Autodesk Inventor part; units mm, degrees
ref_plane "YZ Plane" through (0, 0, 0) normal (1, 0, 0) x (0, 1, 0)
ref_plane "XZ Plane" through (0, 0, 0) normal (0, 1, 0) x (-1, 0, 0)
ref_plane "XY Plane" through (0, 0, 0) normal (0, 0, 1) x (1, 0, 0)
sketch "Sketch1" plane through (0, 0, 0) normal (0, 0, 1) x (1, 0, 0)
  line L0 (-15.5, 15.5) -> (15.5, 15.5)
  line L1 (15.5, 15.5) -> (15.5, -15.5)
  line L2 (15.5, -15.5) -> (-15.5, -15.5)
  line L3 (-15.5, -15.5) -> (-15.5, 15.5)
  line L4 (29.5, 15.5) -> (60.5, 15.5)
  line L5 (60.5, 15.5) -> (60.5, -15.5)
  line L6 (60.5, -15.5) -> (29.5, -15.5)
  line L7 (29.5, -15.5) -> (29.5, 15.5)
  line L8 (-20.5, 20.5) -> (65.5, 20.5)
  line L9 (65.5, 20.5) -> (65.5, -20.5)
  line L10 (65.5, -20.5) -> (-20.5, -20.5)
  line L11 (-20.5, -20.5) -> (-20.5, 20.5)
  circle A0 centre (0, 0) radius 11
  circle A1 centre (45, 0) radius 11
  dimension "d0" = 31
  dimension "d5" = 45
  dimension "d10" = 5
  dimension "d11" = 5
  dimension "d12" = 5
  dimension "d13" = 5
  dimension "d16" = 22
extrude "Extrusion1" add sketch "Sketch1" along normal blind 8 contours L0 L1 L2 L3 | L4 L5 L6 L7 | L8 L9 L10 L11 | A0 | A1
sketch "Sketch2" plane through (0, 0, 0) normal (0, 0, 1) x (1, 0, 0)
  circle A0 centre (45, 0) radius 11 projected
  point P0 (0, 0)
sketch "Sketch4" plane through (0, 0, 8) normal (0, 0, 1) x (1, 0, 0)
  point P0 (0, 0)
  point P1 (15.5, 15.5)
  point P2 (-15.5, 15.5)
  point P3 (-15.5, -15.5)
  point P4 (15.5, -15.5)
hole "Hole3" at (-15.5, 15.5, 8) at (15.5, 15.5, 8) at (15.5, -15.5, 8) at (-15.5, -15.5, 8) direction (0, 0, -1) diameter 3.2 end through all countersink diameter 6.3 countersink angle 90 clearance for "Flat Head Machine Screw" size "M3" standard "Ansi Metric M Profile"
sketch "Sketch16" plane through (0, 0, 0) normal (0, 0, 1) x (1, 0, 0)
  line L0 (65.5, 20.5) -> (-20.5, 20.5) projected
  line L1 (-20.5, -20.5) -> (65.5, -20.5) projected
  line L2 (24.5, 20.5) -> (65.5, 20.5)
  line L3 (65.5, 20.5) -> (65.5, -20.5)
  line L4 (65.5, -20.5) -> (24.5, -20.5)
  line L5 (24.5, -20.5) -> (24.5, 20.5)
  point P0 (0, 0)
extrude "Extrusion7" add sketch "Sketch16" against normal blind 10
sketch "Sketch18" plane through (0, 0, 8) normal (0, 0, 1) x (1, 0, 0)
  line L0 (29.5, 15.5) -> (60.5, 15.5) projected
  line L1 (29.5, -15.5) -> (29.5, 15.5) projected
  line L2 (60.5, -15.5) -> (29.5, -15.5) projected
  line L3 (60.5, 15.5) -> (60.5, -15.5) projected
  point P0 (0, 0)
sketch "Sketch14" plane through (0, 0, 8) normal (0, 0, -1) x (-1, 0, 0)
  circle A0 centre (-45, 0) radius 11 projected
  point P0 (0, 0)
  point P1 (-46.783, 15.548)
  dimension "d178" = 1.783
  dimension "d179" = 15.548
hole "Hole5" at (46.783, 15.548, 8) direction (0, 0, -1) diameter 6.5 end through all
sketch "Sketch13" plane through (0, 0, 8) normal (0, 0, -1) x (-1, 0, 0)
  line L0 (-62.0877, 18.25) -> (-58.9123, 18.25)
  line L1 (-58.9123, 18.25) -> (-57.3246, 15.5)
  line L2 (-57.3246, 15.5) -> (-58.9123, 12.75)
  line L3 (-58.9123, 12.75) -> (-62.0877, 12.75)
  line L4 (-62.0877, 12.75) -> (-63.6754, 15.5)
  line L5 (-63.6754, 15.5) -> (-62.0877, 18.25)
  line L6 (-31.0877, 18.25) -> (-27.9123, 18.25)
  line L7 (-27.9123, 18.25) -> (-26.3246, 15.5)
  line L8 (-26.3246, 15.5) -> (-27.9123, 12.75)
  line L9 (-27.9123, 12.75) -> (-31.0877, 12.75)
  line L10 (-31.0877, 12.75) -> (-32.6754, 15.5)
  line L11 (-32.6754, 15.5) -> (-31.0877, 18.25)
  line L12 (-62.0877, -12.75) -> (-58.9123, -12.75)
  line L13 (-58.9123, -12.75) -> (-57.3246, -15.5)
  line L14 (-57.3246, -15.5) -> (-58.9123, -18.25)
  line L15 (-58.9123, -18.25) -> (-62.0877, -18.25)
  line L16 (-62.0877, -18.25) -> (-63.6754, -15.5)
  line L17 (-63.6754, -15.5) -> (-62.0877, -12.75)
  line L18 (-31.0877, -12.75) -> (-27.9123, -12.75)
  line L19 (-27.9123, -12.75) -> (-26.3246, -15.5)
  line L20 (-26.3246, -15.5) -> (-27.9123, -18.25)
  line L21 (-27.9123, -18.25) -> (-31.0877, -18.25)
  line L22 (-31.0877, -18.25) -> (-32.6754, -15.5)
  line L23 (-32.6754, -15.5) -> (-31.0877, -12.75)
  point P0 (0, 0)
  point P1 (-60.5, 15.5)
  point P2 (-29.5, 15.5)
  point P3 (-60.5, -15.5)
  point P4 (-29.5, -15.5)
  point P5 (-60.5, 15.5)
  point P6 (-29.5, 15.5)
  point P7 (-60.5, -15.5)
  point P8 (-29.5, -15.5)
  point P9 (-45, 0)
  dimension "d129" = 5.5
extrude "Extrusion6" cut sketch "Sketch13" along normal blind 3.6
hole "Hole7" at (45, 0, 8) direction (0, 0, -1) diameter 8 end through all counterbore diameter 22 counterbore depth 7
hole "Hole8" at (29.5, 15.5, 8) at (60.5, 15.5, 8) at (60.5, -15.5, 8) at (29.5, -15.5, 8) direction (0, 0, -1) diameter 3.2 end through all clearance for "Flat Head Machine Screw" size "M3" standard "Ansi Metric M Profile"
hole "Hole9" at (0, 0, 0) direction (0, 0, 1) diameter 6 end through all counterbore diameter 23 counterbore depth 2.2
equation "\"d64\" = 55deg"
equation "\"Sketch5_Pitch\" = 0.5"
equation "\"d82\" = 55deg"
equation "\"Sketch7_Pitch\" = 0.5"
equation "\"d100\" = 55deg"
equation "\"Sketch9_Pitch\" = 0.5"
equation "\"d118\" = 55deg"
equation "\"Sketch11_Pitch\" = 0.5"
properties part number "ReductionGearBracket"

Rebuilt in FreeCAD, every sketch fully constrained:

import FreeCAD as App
import Part
import Sketcher
Q = App.Units.Quantity

doc = App.newDocument("Part")
params = doc.addObject("Spreadsheet::Sheet", "Params")
for row, (alias, value) in enumerate([
    ("sketch1_width", "86 mm"),
    ("sketch1_height", "41 mm"),
    ("pad1_length", "8 mm"),
    ("sketch2_diameter", "3.2 mm"),
    ("hole_diameter", "3.2 mm"),
    ("hole_csink_diameter", "6.3 mm"),
    ("sketch3_width", "41 mm"),
    ("pad2_length", "10 mm"),
    ("sketch4_diameter", "6.5 mm"),
    ("hole2_diameter", "6.5 mm"),
    ("pocket1_length", "3.6 mm"),
    ("sketch6_diameter", "8 mm"),
    ("hole3_diameter", "8 mm"),
    ("hole3_cbore_diameter", "22 mm"),
    ("hole3_cbore_depth", "7 mm"),
    ("sketch7_diameter", "3.2 mm"),
    ("hole4_diameter", "3.2 mm"),
    ("sketch8_diameter", "6 mm"),
    ("hole5_diameter", "6 mm"),
    ("hole5_cbore_diameter", "23 mm"),
    ("hole5_cbore_depth", "2.2 mm"),
], start=1):
    params.set(f"A{row}", alias)
    params.set(f"B{row}", "=" + value)
    params.setAlias(f"B{row}", alias)

body = doc.addObject("PartDesign::Body", "Body")

# Sketch on XY plane
sketch1 = body.newObject("Sketcher::SketchObject", "Sketch")
sketch1.AttachmentSupport = (doc.getObject("XY_Plane"), [""])
sketch1.MapMode = "FlatFace"
sketch1.addGeometry([
    Part.LineSegment(App.Vector(66, 20, 0), App.Vector(-20, 20, 0)),
    Part.LineSegment(App.Vector(-20, 20, 0), App.Vector(-20, -20, 0)),
    Part.LineSegment(App.Vector(-20, -20, 0), App.Vector(66, -20, 0)),
    Part.LineSegment(App.Vector(66, -20, 0), App.Vector(66, 20, 0)),
], False)
sketch1.addConstraint([
    Sketcher.Constraint("Coincident", 0, 2, 1, 1),
    Sketcher.Constraint("Coincident", 1, 2, 2, 1),
    Sketcher.Constraint("Coincident", 2, 2, 3, 1),
    Sketcher.Constraint("Coincident", 3, 2, 0, 1),
    Sketcher.Constraint("Horizontal", 0),
    Sketcher.Constraint("Vertical", 1),
    Sketcher.Constraint("Horizontal", 2),
    Sketcher.Constraint("Vertical", 3),
    Sketcher.Constraint("DistanceX", 0, 2, 0, 1, 86.0),
    Sketcher.Constraint("DistanceY", 1, 2, 1, 1, 41.0),
    Sketcher.Constraint("DistanceX", 0, 2, -1, 1, 20.5),
    Sketcher.Constraint("DistanceY", -1, 1, 0, 2, 20.5),
])
sketch1.setExpression("Constraints[8]", "Params.sketch1_width")
sketch1.setExpression("Constraints[9]", "Params.sketch1_height")
pad1 = body.newObject("PartDesign::Pad", "Pad")
pad1.Profile = sketch1
pad1.setExpression("Length", "Params.pad1_length")

# Sketch on XY plane
sketch2 = body.newObject("Sketcher::SketchObject", "Sketch001")
sketch2.AttachmentSupport = (doc.getObject("XY_Plane"), [""])
sketch2.MapMode = "FlatFace"
sketch2.AttachmentOffset = App.Placement(App.Vector(0, 0, 8), App.Rotation())
sketch2.addGeometry([
    Part.Circle(App.Vector(-15.5, 15.5, 0), App.Vector(0, 0, 1), 1.6),
    Part.Circle(App.Vector(15.5, 15.5, 0), App.Vector(0, 0, 1), 1.6),
    Part.Circle(App.Vector(15.5, -15.5, 0), App.Vector(0, 0, 1), 1.6),
    Part.Circle(App.Vector(-15.5, -15.5, 0), App.Vector(0, 0, 1), 1.6),
], False)
sketch2.addConstraint([
    Sketcher.Constraint("Equal", 0, 1),
    Sketcher.Constraint("Equal", 1, 2),
    Sketcher.Constraint("Equal", 2, 3),
    Sketcher.Constraint("Symmetric", 0, 3, 2, 3, -1, 1),
    Sketcher.Constraint("Symmetric", 1, 3, 3, 3, -1, 1),
    Sketcher.Constraint("Symmetric", 0, 3, 1, 3, -2),
    Sketcher.Constraint("Diameter", 0, 3.2),
    Sketcher.Constraint("DistanceX", 0, 3, 1, 3, 31.0),
    Sketcher.Constraint("DistanceY", 2, 3, 1, 3, 31.0),
])
sketch2.setExpression("Constraints[6]", "Params.sketch2_diameter")
doc.recompute()
hole = body.newObject("PartDesign::Hole", "Hole")
hole.Profile = sketch2
hole.ThreadType = "None"
hole.setExpression("Diameter", "Params.hole_diameter")
hole.DepthType = "ThroughAll"
hole.HoleCutType = "Countersink"
hole.setExpression("HoleCutDiameter", "Params.hole_csink_diameter")
hole.HoleCutCountersinkAngle = 90

# Sketch on XY plane
sketch3 = body.newObject("Sketcher::SketchObject", "Sketch002")
sketch3.AttachmentSupport = (doc.getObject("XY_Plane"), [""])
sketch3.MapMode = "FlatFace"
sketch3.addGeometry([
    Part.LineSegment(App.Vector(66, -20, 0), App.Vector(66, 20, 0)),
    Part.LineSegment(App.Vector(66, 20, 0), App.Vector(24, 20, 0)),
    Part.LineSegment(App.Vector(24, 20, 0), App.Vector(24, -20, 0)),
    Part.LineSegment(App.Vector(24, -20, 0), App.Vector(66, -20, 0)),
], False)
sketch3.addConstraint([
    Sketcher.Constraint("Coincident", 0, 2, 1, 1),
    Sketcher.Constraint("Coincident", 1, 2, 2, 1),
    Sketcher.Constraint("Coincident", 2, 2, 3, 1),
    Sketcher.Constraint("Coincident", 3, 2, 0, 1),
    Sketcher.Constraint("Vertical", 0),
    Sketcher.Constraint("Horizontal", 1),
    Sketcher.Constraint("Vertical", 2),
    Sketcher.Constraint("Horizontal", 3),
    Sketcher.Constraint("Equal", 3, 0),
    Sketcher.Constraint("DistanceX", 1, 2, 1, 1, 41.0),
    Sketcher.Constraint("DistanceX", -1, 1, 0, 2, 65.5),
    Sketcher.Constraint("DistanceY", -1, 1, 0, 2, 20.5),
])
sketch3.setExpression("Constraints[9]", "Params.sketch3_width")
pad2 = body.newObject("PartDesign::Pad", "Pad001")
pad2.Profile = sketch3
pad2.setExpression("Length", "Params.pad2_length")
pad2.Reversed = True

# Sketch on XY plane
sketch4 = body.newObject("Sketcher::SketchObject", "Sketch003")
sketch4.AttachmentSupport = (doc.getObject("XY_Plane"), [""])
sketch4.MapMode = "FlatFace"
sketch4.AttachmentOffset = App.Placement(App.Vector(0, 0, 8), App.Rotation())
sketch4.addGeometry(Part.Circle(App.Vector(46.8, 15.5, 0), App.Vector(0, 0, 1), 3.2), False)
sketch4.addConstraint([
    Sketcher.Constraint("Diameter", 0, 6.5),
    Sketcher.Constraint("DistanceX", -1, 1, 0, 3, 46.783),
    Sketcher.Constraint("DistanceY", -1, 1, 0, 3, 15.548),
])
sketch4.setExpression("Constraints[0]", "Params.sketch4_diameter")
doc.recompute()
hole2 = body.newObject("PartDesign::Hole", "Hole001")
hole2.Profile = sketch4
hole2.ThreadType = "None"
hole2.setExpression("Diameter", "Params.hole2_diameter")
hole2.DepthType = "ThroughAll"

# Sketch on XY plane
sketch5 = body.newObject("Sketcher::SketchObject", "Sketch004")
sketch5.AttachmentSupport = (doc.getObject("XY_Plane"), [""])
sketch5.MapMode = "FlatFace"
sketch5.AttachmentOffset = App.Placement(App.Vector(0, 0, 8), App.Rotation())
sketch5.addGeometry([
    Part.LineSegment(App.Vector(58.9, 18.2, 0), App.Vector(62.1, 18.2, 0)),  # 0
    Part.LineSegment(App.Vector(62.1, 18.2, 0), App.Vector(63.7, 15.5, 0)),  # 1
    Part.LineSegment(App.Vector(63.7, 15.5, 0), App.Vector(62.1, 12.8, 0)),  # 2
    Part.LineSegment(App.Vector(62.1, 12.8, 0), App.Vector(58.9, 12.8, 0)),  # 3
    Part.LineSegment(App.Vector(58.9, 12.8, 0), App.Vector(57.3, 15.5, 0)),  # 4
    Part.LineSegment(App.Vector(57.3, 15.5, 0), App.Vector(58.9, 18.2, 0)),  # 5
    Part.LineSegment(App.Vector(27.9, 18.2, 0), App.Vector(31.1, 18.2, 0)),  # 6
    Part.LineSegment(App.Vector(31.1, 18.2, 0), App.Vector(32.7, 15.5, 0)),  # 7
    Part.LineSegment(App.Vector(32.7, 15.5, 0), App.Vector(31.1, 12.8, 0)),  # 8
    Part.LineSegment(App.Vector(31.1, 12.8, 0), App.Vector(27.9, 12.8, 0)),  # 9
    Part.LineSegment(App.Vector(27.9, 12.8, 0), App.Vector(26.3, 15.5, 0)),  # 10
    Part.LineSegment(App.Vector(26.3, 15.5, 0), App.Vector(27.9, 18.2, 0)),  # 11
    Part.LineSegment(App.Vector(58.9, -12.8, 0), App.Vector(62.1, -12.8, 0)),  # 12
    Part.LineSegment(App.Vector(62.1, -12.8, 0), App.Vector(63.7, -15.5, 0)),  # 13
    Part.LineSegment(App.Vector(63.7, -15.5, 0), App.Vector(62.1, -18.2, 0)),  # 14
    Part.LineSegment(App.Vector(62.1, -18.2, 0), App.Vector(58.9, -18.2, 0)),  # 15
    Part.LineSegment(App.Vector(58.9, -18.2, 0), App.Vector(57.3, -15.5, 0)),  # 16
    Part.LineSegment(App.Vector(57.3, -15.5, 0), App.Vector(58.9, -12.8, 0)),  # 17
    Part.LineSegment(App.Vector(27.9, -12.8, 0), App.Vector(31.1, -12.8, 0)),  # 18
    Part.LineSegment(App.Vector(31.1, -12.8, 0), App.Vector(32.7, -15.5, 0)),  # 19
    Part.LineSegment(App.Vector(32.7, -15.5, 0), App.Vector(31.1, -18.2, 0)),  # 20
    Part.LineSegment(App.Vector(31.1, -18.2, 0), App.Vector(27.9, -18.2, 0)),  # 21
    Part.LineSegment(App.Vector(27.9, -18.2, 0), App.Vector(26.3, -15.5, 0)),  # 22
    Part.LineSegment(App.Vector(26.3, -15.5, 0), App.Vector(27.9, -12.8, 0)),  # 23
], False)
sketch5.addConstraint([
    Sketcher.Constraint("Coincident", 0, 2, 1, 1),
    Sketcher.Constraint("Coincident", 1, 2, 2, 1),
    Sketcher.Constraint("Coincident", 2, 2, 3, 1),
    Sketcher.Constraint("Coincident", 3, 2, 4, 1),
    Sketcher.Constraint("Coincident", 4, 2, 5, 1),
    Sketcher.Constraint("Coincident", 5, 2, 0, 1),
    Sketcher.Constraint("Coincident", 6, 2, 7, 1),
    Sketcher.Constraint("Coincident", 7, 2, 8, 1),
    Sketcher.Constraint("Coincident", 8, 2, 9, 1),
    Sketcher.Constraint("Coincident", 9, 2, 10, 1),
    Sketcher.Constraint("Coincident", 10, 2, 11, 1),
    Sketcher.Constraint("Coincident", 11, 2, 6, 1),
    Sketcher.Constraint("Coincident", 12, 2, 13, 1),
    Sketcher.Constraint("Coincident", 13, 2, 14, 1),
    Sketcher.Constraint("Coincident", 14, 2, 15, 1),
    Sketcher.Constraint("Coincident", 15, 2, 16, 1),
    Sketcher.Constraint("Coincident", 16, 2, 17, 1),
    Sketcher.Constraint("Coincident", 17, 2, 12, 1),
    Sketcher.Constraint("Coincident", 18, 2, 19, 1),
    Sketcher.Constraint("Coincident", 19, 2, 20, 1),
    Sketcher.Constraint("Coincident", 20, 2, 21, 1),
    Sketcher.Constraint("Coincident", 21, 2, 22, 1),
    Sketcher.Constraint("Coincident", 22, 2, 23, 1),
    Sketcher.Constraint("Coincident", 23, 2, 18, 1),
    Sketcher.Constraint("Horizontal", 0),
    Sketcher.Constraint("Horizontal", 3),
    Sketcher.Constraint("Horizontal", 6),
    Sketcher.Constraint("Horizontal", 9),
    Sketcher.Constraint("Horizontal", 12),
    Sketcher.Constraint("Horizontal", 15),
    Sketcher.Constraint("Horizontal", 18),
    Sketcher.Constraint("Horizontal", 21),
    Sketcher.Constraint("Symmetric", 2, 2, 12, 2, -1),
    Sketcher.Constraint("Symmetric", 1, 2, 13, 2, -1),
    Sketcher.Constraint("Symmetric", 0, 2, 14, 2, -1),
    Sketcher.Constraint("Symmetric", 4, 2, 16, 2, -1),
    Sketcher.Constraint("Symmetric", 8, 2, 18, 2, -1),
    Sketcher.Constraint("Symmetric", 7, 2, 19, 2, -1),
    Sketcher.Constraint("Symmetric", 6, 2, 20, 2, -1),
    Sketcher.Constraint("Symmetric", 10, 2, 22, 2, -1),
    Sketcher.Constraint("Parallel", 1, 4),
    Sketcher.Constraint("Parallel", 2, 5),
    Sketcher.Constraint("Parallel", 4, 7),
    Sketcher.Constraint("Parallel", 5, 8),
    Sketcher.Constraint("Parallel", 7, 10),
    Sketcher.Constraint("Parallel", 8, 11),
    Sketcher.Constraint("Parallel", 10, 13),
    Sketcher.Constraint("Parallel", 13, 16),
    Sketcher.Constraint("Parallel", 14, 17),
    Sketcher.Constraint("Parallel", 19, 22),
    Sketcher.Constraint("Parallel", 20, 23),
    Sketcher.Constraint("Horizontal", 1, 2, 4, 2),
    Sketcher.Constraint("Horizontal", 5, 2, 6, 2),
    Sketcher.Constraint("Horizontal", 4, 2, 7, 2),
    Sketcher.Constraint("Horizontal", 3, 2, 8, 2),
    Sketcher.Constraint("Horizontal", 7, 2, 10, 2),
    Sketcher.Constraint("Vertical", 0, 2, 2, 2),
    Sketcher.Constraint("Equal", 3, 6),
    Sketcher.Constraint("DistanceY", 2, 2, 0, 2, 5.5),
    Sketcher.Constraint("Angle", 1, Q("-60.0002 deg")),
    Sketcher.Constraint("DistanceX", 6, 2, 0, 2, 31.0),
    Sketcher.Constraint("DistanceY", 12, 2, 0, 2, 31.0),
    Sketcher.Constraint("DistanceX", 0, 1, 0, 2, 3.1754),
    Sketcher.Constraint("DistanceX", -1, 1, 0, 2, 62.0877),
])
pocket1 = body.newObject("PartDesign::Pocket", "Pocket")
pocket1.Profile = sketch5
pocket1.setExpression("Length", "Params.pocket1_length")

# Sketch on XY plane
sketch6 = body.newObject("Sketcher::SketchObject", "Sketch005")
sketch6.AttachmentSupport = (doc.getObject("XY_Plane"), [""])
sketch6.MapMode = "FlatFace"
sketch6.AttachmentOffset = App.Placement(App.Vector(0, 0, 8), App.Rotation())
sketch6.addGeometry(Part.Circle(App.Vector(45, 0, 0), App.Vector(0, 0, 1), 4), False)
sketch6.addConstraint([
    Sketcher.Constraint("PointOnObject", 0, 3, -1),
    Sketcher.Constraint("Diameter", 0, 8.0),
    Sketcher.Constraint("DistanceX", -1, 1, 0, 3, 45.0),
])
sketch6.setExpression("Constraints[1]", "Params.sketch6_diameter")
doc.recompute()
hole3 = body.newObject("PartDesign::Hole", "Hole002")
hole3.Profile = sketch6
hole3.ThreadType = "None"
hole3.setExpression("Diameter", "Params.hole3_diameter")
hole3.DepthType = "ThroughAll"
hole3.HoleCutType = "Counterbore"
hole3.setExpression("HoleCutDiameter", "Params.hole3_cbore_diameter")
hole3.setExpression("HoleCutDepth", "Params.hole3_cbore_depth")

# Sketch on XY plane
sketch7 = body.newObject("Sketcher::SketchObject", "Sketch006")
sketch7.AttachmentSupport = (doc.getObject("XY_Plane"), [""])
sketch7.MapMode = "FlatFace"
sketch7.AttachmentOffset = App.Placement(App.Vector(0, 0, 8), App.Rotation())
sketch7.addGeometry([
    Part.Circle(App.Vector(29.5, 15.5, 0), App.Vector(0, 0, 1), 1.6),
    Part.Circle(App.Vector(60.5, 15.5, 0), App.Vector(0, 0, 1), 1.6),
    Part.Circle(App.Vector(60.5, -15.5, 0), App.Vector(0, 0, 1), 1.6),
    Part.Circle(App.Vector(29.5, -15.5, 0), App.Vector(0, 0, 1), 1.6),
], False)
sketch7.addConstraint([
    Sketcher.Constraint("Equal", 0, 1),
    Sketcher.Constraint("Equal", 1, 2),
    Sketcher.Constraint("Equal", 2, 3),
    Sketcher.Constraint("Symmetric", 1, 3, 2, 3, -1),
    Sketcher.Constraint("Symmetric", 0, 3, 3, 3, -1),
    Sketcher.Constraint("Horizontal", 0, 3, 1, 3),
    Sketcher.Constraint("Diameter", 0, 3.2),
    Sketcher.Constraint("DistanceX", 0, 3, 1, 3, 31.0),
    Sketcher.Constraint("DistanceY", 2, 3, 1, 3, 31.0),
    Sketcher.Constraint("DistanceX", -1, 1, 0, 3, 29.5),
])
sketch7.setExpression("Constraints[6]", "Params.sketch7_diameter")
doc.recompute()
hole4 = body.newObject("PartDesign::Hole", "Hole003")
hole4.Profile = sketch7
hole4.ThreadType = "None"
hole4.setExpression("Diameter", "Params.hole4_diameter")
hole4.DepthType = "ThroughAll"

# Sketch on XY plane
sketch8 = body.newObject("Sketcher::SketchObject", "Sketch007")
sketch8.AttachmentSupport = (doc.getObject("XY_Plane"), [""])
sketch8.MapMode = "FlatFace"
sketch8.addGeometry(Part.Circle(App.Vector(0, 0, 0), App.Vector(0, 0, 1), 3), False)
sketch8.addConstraint([
    Sketcher.Constraint("Coincident", 0, 3, -1, 1),
    Sketcher.Constraint("Diameter", 0, 6.0),
])
sketch8.setExpression("Constraints[1]", "Params.sketch8_diameter")
doc.recompute()
hole5 = body.newObject("PartDesign::Hole", "Hole004")
hole5.Profile = sketch8
hole5.ThreadType = "None"
hole5.setExpression("Diameter", "Params.hole5_diameter")
hole5.DepthType = "ThroughAll"
hole5.HoleCutType = "Counterbore"
hole5.setExpression("HoleCutDiameter", "Params.hole5_cbore_diameter")
hole5.setExpression("HoleCutDepth", "Params.hole5_cbore_depth")
hole5.Reversed = True

doc.recompute()
